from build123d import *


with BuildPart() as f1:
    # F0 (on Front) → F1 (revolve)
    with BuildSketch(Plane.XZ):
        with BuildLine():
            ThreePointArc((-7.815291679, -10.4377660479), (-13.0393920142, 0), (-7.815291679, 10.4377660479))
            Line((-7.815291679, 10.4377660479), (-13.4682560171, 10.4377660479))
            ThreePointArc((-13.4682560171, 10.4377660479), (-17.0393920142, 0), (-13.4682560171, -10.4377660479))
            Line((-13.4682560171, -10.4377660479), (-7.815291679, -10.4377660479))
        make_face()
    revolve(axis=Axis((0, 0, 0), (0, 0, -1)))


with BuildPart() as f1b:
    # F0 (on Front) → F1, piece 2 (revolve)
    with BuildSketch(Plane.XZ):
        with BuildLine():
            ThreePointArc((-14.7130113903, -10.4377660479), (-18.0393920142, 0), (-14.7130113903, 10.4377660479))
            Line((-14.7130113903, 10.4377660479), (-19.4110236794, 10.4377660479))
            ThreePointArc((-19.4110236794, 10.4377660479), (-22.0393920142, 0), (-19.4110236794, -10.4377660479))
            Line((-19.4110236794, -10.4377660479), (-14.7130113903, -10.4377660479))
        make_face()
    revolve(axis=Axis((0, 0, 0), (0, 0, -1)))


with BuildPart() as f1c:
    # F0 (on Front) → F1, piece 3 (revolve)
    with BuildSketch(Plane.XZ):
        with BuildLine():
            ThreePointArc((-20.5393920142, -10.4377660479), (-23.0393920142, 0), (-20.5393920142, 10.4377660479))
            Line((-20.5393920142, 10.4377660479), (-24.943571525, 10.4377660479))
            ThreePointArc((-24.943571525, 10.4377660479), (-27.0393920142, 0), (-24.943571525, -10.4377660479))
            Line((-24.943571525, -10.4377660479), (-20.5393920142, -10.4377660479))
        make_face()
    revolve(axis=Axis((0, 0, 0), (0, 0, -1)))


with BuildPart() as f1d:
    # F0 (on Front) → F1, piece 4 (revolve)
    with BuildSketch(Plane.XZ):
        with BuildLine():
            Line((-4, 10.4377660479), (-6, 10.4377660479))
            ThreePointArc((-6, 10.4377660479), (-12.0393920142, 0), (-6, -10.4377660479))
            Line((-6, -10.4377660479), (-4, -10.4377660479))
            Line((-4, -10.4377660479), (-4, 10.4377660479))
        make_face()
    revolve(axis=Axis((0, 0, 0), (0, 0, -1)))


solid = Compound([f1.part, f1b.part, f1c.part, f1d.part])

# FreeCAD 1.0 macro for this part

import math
import FreeCAD as App
import Part
import Sketcher
from FreeCAD import Vector
Q = App.Units.Quantity

doc = App.newDocument("Part")
params = doc.addObject("Spreadsheet::Sheet", "Params")
for row, (alias, value) in enumerate([
    ("revolution_angle", "360 deg"),
    ("revolution2_angle", "360 deg"),
    ("revolution3_angle", "360 deg"),
    ("sketch4_width", "2 mm"),
    ("revolution4_angle", "360 deg"),
], start=1):
    params.set(f"A{row}", alias)
    params.set(f"B{row}", "=" + value)
    params.setAlias(f"B{row}", alias)

body = doc.addObject("PartDesign::Body", "Body")

sketch1 = body.newObject("Sketcher::SketchObject", "Sketch")
sketch1.AttachmentSupport = (doc.getObject("XZ_Plane"), [""])
sketch1.MapMode = "FlatFace"
sketch1.addGeometry([
    Part.ArcOfCircle(Part.Circle(Vector(0, 0, 0), Vector(0, 0, 1), 13.039392), math.radians(126.824084), math.radians(233.175916)),
    Part.LineSegment(Vector(-7.815292, 10.437766, 0), Vector(-13.468256, 10.437766, 0)),
    Part.ArcOfCircle(Part.Circle(Vector(0, 0, 0), Vector(0, 0, 1), 17.039392), math.radians(142.224667), math.radians(217.775333)),
    Part.LineSegment(Vector(-13.468256, -10.437766, 0), Vector(-7.815292, -10.437766, 0)),
], False)
sketch1.addConstraint([
    Sketcher.Constraint("Coincident", 0, 1, 1, 1),
    Sketcher.Constraint("Coincident", 1, 2, 2, 1),
    Sketcher.Constraint("Coincident", 2, 2, 3, 1),
    Sketcher.Constraint("Coincident", 3, 2, 0, 2),
    Sketcher.Constraint("Horizontal", 1),
    Sketcher.Constraint("Horizontal", 3),
    Sketcher.Constraint("Coincident", 0, 3, -1, 1),
    Sketcher.Constraint("Coincident", 2, 3, -1, 1),
    Sketcher.Constraint("Vertical", 1, 2, 2, 2),
    Sketcher.Constraint("Radius", 0, Q("13.039392 mm")),
    Sketcher.Constraint("Radius", 2, Q("17.039392 mm")),
    Sketcher.Constraint("DistanceX", 1, 2, 1, 1, Q("5.652964 mm")),
])
revolution = body.newObject("PartDesign::Revolution", "Revolution")
revolution.Profile = sketch1
revolution.ReferenceAxis = (sketch1, ["V_Axis"])
revolution.setExpression("Angle", "Params.revolution_angle")
body2 = doc.addObject("PartDesign::Body", "Body001")

sketch2 = body2.newObject("Sketcher::SketchObject", "Sketch001")
sketch2.AttachmentSupport = (doc.getObject("XZ_Plane001"), [""])
sketch2.MapMode = "FlatFace"
sketch2.addGeometry([
    Part.ArcOfCircle(Part.Circle(Vector(0, 0, 0), Vector(0, 0, 1), 18.039392), math.radians(144.647189), math.radians(215.352811)),
    Part.LineSegment(Vector(-14.713011, 10.437766, 0), Vector(-19.411024, 10.437766, 0)),
    Part.ArcOfCircle(Part.Circle(Vector(0, 0, 0), Vector(0, 0, 1), 22.039392), math.radians(151.73203), math.radians(208.26797)),
    Part.LineSegment(Vector(-19.411024, -10.437766, 0), Vector(-14.713011, -10.437766, 0)),
], False)
sketch2.addConstraint([
    Sketcher.Constraint("Coincident", 0, 1, 1, 1),
    Sketcher.Constraint("Coincident", 1, 2, 2, 1),
    Sketcher.Constraint("Coincident", 2, 2, 3, 1),
    Sketcher.Constraint("Coincident", 3, 2, 0, 2),
    Sketcher.Constraint("Horizontal", 1),
    Sketcher.Constraint("Horizontal", 3),
    Sketcher.Constraint("Coincident", 0, 3, -1, 1),
    Sketcher.Constraint("Coincident", 2, 3, -1, 1),
    Sketcher.Constraint("Vertical", 1, 2, 2, 2),
    Sketcher.Constraint("Radius", 0, Q("18.039392 mm")),
    Sketcher.Constraint("Radius", 2, Q("22.039392 mm")),
    Sketcher.Constraint("DistanceX", 1, 2, 1, 1, Q("4.698012 mm")),
])
revolution2 = body2.newObject("PartDesign::Revolution", "Revolution001")
revolution2.Profile = sketch2
revolution2.ReferenceAxis = (sketch2, ["V_Axis"])
revolution2.setExpression("Angle", "Params.revolution2_angle")
body3 = doc.addObject("PartDesign::Body", "Body002")

sketch3 = body3.newObject("Sketcher::SketchObject", "Sketch002")
sketch3.AttachmentSupport = (doc.getObject("XZ_Plane002"), [""])
sketch3.MapMode = "FlatFace"
sketch3.addGeometry([
    Part.ArcOfCircle(Part.Circle(Vector(0, 0, 0), Vector(0, 0, 1), 23.039392), math.radians(153.061105), math.radians(206.938895)),
    Part.LineSegment(Vector(-20.539392, 10.437766, 0), Vector(-24.943572, 10.437766, 0)),
    Part.ArcOfCircle(Part.Circle(Vector(0, 0, 0), Vector(0, 0, 1), 27.039392), math.radians(157.292876), math.radians(202.707124)),
    Part.LineSegment(Vector(-24.943572, -10.437766, 0), Vector(-20.539392, -10.437766, 0)),
], False)
sketch3.addConstraint([
    Sketcher.Constraint("Coincident", 0, 1, 1, 1),
    Sketcher.Constraint("Coincident", 1, 2, 2, 1),
    Sketcher.Constraint("Coincident", 2, 2, 3, 1),
    Sketcher.Constraint("Coincident", 3, 2, 0, 2),
    Sketcher.Constraint("Horizontal", 1),
    Sketcher.Constraint("Horizontal", 3),
    Sketcher.Constraint("Coincident", 0, 3, -1, 1),
    Sketcher.Constraint("Coincident", 2, 3, -1, 1),
    Sketcher.Constraint("Vertical", 1, 2, 2, 2),
    Sketcher.Constraint("Radius", 0, Q("23.039392 mm")),
    Sketcher.Constraint("Radius", 2, Q("27.039392 mm")),
    Sketcher.Constraint("DistanceX", 1, 2, 1, 1, Q("4.40418 mm")),
])
revolution3 = body3.newObject("PartDesign::Revolution", "Revolution002")
revolution3.Profile = sketch3
revolution3.ReferenceAxis = (sketch3, ["V_Axis"])
revolution3.setExpression("Angle", "Params.revolution3_angle")
body4 = doc.addObject("PartDesign::Body", "Body003")

sketch4 = body4.newObject("Sketcher::SketchObject", "Sketch003")
sketch4.AttachmentSupport = (doc.getObject("XZ_Plane003"), [""])
sketch4.MapMode = "FlatFace"
sketch4.addGeometry([
    Part.LineSegment(Vector(-4, 10.437766, 0), Vector(-6, 10.437766, 0)),
    Part.ArcOfCircle(Part.Circle(Vector(0, 0, 0), Vector(0, 0, 1), 12.039392), math.radians(119.891824), math.radians(240.108176)),
    Part.LineSegment(Vector(-6, -10.437766, 0), Vector(-4, -10.437766, 0)),
    Part.LineSegment(Vector(-4, -10.437766, 0), Vector(-4, 10.437766, 0)),
], False)
sketch4.addConstraint([
    Sketcher.Constraint("Coincident", 0, 2, 1, 1),
    Sketcher.Constraint("Coincident", 1, 2, 2, 1),
    Sketcher.Constraint("Coincident", 2, 2, 3, 1),
    Sketcher.Constraint("Coincident", 3, 2, 0, 1),
    Sketcher.Constraint("Horizontal", 0),
    Sketcher.Constraint("Horizontal", 2),
    Sketcher.Constraint("Vertical", 3),
    Sketcher.Constraint("Coincident", 1, 3, -1, 1),
    Sketcher.Constraint("Vertical", 0, 2, 1, 2),
    Sketcher.Constraint("DistanceX", 0, 2, 0, 1, Q("2 mm")),
    Sketcher.Constraint("DistanceX", 0, 2, -1, 1, Q("6 mm")),
    Sketcher.Constraint("Radius", 1, Q("12.039392 mm")),
])
sketch4.setExpression("Constraints[9]", "Params.sketch4_width")
revolution4 = body4.newObject("PartDesign::Revolution", "Revolution003")
revolution4.Profile = sketch4
revolution4.ReferenceAxis = (sketch4, ["V_Axis"])
revolution4.setExpression("Angle", "Params.revolution4_angle")

doc.recompute()
